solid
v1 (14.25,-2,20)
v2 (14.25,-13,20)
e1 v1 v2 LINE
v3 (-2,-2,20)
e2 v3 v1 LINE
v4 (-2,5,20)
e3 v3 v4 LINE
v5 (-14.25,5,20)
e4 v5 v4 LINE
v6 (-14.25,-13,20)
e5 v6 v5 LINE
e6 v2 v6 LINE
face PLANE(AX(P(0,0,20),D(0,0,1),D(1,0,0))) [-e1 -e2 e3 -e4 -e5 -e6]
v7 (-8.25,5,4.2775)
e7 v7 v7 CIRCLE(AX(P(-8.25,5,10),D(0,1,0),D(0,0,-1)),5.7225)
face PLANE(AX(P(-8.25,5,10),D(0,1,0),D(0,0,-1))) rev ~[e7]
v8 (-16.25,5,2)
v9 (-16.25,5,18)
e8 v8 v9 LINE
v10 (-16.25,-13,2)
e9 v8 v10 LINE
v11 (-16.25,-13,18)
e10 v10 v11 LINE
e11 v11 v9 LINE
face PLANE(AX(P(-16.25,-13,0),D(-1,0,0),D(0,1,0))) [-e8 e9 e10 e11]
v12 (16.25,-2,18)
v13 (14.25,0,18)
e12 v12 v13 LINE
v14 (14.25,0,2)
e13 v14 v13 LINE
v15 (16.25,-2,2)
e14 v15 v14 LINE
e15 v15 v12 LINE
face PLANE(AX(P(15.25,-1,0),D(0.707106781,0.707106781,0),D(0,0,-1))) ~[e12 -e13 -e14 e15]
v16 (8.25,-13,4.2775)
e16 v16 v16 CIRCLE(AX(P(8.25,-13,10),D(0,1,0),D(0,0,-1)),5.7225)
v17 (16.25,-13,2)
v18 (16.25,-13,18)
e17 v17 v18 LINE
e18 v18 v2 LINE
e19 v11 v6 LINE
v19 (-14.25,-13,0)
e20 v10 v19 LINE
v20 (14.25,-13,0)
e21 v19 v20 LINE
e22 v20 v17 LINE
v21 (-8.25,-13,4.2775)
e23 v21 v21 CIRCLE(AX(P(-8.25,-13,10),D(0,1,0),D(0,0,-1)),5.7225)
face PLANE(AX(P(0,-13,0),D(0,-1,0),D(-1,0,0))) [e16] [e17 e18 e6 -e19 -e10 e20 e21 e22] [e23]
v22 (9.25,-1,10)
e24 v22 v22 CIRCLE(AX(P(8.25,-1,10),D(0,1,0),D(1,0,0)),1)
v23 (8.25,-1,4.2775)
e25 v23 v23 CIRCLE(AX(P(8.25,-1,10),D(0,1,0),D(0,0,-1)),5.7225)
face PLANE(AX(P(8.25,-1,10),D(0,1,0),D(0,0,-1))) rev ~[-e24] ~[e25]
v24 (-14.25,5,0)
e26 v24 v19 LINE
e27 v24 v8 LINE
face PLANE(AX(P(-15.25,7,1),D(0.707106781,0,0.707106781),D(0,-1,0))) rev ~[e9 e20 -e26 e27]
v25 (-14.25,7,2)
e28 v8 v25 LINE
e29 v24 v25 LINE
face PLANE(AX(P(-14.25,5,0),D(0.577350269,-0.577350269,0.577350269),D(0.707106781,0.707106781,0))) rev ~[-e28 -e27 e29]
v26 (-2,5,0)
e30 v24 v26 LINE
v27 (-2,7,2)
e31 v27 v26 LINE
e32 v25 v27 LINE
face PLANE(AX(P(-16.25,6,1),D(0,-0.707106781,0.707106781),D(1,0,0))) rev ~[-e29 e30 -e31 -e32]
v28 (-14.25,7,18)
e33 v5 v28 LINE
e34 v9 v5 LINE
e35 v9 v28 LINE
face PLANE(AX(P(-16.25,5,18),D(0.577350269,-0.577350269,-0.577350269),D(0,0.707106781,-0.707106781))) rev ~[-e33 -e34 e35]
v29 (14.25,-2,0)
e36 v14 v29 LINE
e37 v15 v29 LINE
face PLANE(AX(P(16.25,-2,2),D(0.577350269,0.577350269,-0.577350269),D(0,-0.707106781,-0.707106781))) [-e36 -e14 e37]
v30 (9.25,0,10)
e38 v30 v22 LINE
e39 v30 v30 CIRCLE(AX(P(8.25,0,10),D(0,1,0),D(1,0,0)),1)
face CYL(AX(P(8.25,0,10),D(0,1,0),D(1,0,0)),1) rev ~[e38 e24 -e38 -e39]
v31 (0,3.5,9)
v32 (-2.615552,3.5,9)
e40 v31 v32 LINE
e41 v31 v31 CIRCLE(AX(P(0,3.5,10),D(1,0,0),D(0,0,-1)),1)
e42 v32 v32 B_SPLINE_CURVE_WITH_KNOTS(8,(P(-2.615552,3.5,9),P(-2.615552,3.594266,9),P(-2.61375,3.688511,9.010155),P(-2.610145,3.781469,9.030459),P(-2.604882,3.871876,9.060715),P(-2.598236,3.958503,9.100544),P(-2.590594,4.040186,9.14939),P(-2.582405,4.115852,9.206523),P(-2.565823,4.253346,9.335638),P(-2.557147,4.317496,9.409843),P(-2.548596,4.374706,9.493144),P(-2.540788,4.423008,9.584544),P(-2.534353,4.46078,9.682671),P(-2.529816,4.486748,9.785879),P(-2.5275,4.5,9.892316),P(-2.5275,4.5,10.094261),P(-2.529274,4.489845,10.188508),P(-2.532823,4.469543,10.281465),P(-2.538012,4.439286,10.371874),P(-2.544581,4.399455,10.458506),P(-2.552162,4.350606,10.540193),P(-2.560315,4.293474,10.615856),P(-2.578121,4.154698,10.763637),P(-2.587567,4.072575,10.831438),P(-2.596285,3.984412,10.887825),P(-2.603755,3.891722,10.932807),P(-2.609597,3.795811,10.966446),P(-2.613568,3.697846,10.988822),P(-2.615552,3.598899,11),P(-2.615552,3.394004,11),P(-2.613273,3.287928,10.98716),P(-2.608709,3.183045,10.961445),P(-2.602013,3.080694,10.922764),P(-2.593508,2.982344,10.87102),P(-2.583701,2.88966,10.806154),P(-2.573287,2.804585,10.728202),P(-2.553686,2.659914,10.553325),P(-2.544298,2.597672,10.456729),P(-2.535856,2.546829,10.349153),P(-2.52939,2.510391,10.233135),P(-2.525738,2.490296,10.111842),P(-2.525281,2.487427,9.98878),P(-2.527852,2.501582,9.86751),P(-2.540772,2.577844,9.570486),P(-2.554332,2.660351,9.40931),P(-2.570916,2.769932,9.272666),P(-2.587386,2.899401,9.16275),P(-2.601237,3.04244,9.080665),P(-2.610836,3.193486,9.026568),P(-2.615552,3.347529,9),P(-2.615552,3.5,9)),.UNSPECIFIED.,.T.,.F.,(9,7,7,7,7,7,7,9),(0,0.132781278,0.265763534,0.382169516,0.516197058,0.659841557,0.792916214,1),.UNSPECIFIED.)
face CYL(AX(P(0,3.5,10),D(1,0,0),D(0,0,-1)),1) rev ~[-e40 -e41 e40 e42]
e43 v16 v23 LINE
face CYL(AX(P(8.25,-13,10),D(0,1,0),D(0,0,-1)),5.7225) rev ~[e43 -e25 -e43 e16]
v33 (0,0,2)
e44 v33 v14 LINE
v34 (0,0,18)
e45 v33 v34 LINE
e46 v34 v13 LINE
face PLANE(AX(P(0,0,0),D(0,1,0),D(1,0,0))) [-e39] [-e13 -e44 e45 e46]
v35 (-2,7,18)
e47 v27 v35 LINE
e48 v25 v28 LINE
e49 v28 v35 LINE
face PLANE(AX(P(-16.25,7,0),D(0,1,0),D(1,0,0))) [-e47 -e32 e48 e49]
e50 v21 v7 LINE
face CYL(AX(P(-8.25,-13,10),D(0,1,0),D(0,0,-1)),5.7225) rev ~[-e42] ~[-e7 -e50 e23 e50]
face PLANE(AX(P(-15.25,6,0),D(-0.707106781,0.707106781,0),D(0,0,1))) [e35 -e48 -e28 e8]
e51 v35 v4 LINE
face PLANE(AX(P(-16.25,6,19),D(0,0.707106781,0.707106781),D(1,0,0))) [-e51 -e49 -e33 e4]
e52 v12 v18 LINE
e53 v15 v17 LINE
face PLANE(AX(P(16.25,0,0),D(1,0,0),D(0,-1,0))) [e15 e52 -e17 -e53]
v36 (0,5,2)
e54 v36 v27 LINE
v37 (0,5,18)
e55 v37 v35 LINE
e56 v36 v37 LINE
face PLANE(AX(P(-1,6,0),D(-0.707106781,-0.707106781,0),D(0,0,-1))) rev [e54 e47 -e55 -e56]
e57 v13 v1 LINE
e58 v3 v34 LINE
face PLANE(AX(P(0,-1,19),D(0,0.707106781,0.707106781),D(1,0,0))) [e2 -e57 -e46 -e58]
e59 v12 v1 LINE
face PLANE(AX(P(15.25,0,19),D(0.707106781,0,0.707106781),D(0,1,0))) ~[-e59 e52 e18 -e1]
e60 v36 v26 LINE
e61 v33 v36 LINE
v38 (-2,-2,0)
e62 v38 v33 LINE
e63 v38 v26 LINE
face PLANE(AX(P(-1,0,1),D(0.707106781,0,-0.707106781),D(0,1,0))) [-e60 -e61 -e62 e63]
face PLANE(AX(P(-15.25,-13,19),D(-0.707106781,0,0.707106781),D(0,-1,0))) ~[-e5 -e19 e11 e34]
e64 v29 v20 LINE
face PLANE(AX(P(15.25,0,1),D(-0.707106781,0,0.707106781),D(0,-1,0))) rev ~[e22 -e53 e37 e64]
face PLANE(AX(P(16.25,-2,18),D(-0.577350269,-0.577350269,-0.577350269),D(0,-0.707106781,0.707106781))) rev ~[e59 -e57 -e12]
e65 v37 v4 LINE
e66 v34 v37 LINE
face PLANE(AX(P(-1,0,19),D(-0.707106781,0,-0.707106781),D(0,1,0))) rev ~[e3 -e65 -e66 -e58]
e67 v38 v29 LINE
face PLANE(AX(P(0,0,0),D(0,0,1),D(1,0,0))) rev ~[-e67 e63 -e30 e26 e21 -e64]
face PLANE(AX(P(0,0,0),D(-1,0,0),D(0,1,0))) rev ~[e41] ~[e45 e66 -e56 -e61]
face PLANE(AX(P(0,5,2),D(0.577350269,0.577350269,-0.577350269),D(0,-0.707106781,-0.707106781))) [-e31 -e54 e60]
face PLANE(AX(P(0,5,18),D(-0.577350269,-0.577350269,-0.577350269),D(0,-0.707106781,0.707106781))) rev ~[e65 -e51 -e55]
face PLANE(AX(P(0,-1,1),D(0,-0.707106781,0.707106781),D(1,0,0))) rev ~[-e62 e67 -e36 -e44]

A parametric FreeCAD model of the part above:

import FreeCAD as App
import Part
import Sketcher


def edges_at(feature, points):
    """Names of the edges that pass closest to the given points."""
    edges = feature.Shape.Edges
    near = lambda p: min(range(len(edges)), key=lambda i: edges[i].distToShape(Part.Vertex(*p))[0])
    return sorted({f"Edge{near(p) + 1}" for p in points})


def add_polygon(sketch, points):
    """Adds a closed chain of lines whose ends are joined by coincident constraints."""
    first, n = sketch.GeometryCount, len(points)
    for a, b in zip(points, points[1:] + points[:1]):
        sketch.addGeometry(Part.LineSegment(App.Vector(*a, 0), App.Vector(*b, 0)), False)
    for i in range(n):
        sketch.addConstraint(Sketcher.Constraint("Coincident", first + i, 2, first + (i + 1) % n, 1))

doc = App.newDocument("Part")
body = doc.addObject("PartDesign::Body", "Body")

sketch1 = doc.addObject("Sketcher::SketchObject", "Sketch")
body.addObject(sketch1)
sketch1.AttachmentSupport = (doc.XY_Plane, [""])
sketch1.MapMode = "FlatFace"
add_polygon(sketch1, [(-16.25, -13), (16.25, -13), (16.25, 0), (0, 0), (0, 7), (-16.25, 7)])
sketch1.addConstraint(Sketcher.Constraint("Horizontal", 0))
sketch1.addConstraint(Sketcher.Constraint("Vertical", 1))
sketch1.addConstraint(Sketcher.Constraint("Horizontal", 2))
sketch1.addConstraint(Sketcher.Constraint("Vertical", 3))
sketch1.addConstraint(Sketcher.Constraint("Horizontal", 4))
sketch1.addConstraint(Sketcher.Constraint("Vertical", 5))
sketch1.addConstraint(Sketcher.Constraint("Coincident", 2, 2, -1, 1))
sketch1.addConstraint(Sketcher.Constraint("Equal", 2, 4))
sketch1.addConstraint(Sketcher.Constraint("DistanceY", 3, 1, 3, 2, 7.0))
sketch1.addConstraint(Sketcher.Constraint("DistanceY", 5, 2, 5, 1, 20.0))
sketch1.addConstraint(Sketcher.Constraint("DistanceX", 0, 1, 0, 2, 32.5))
pad1 = doc.addObject("PartDesign::Pad", "Pad")
body.addObject(pad1)
pad1.Profile = sketch1
pad1.Length = 20

sketch2 = doc.addObject("Sketcher::SketchObject", "Sketch001")
body.addObject(sketch2)
sketch2.AttachmentSupport = (doc.XZ_Plane, [""])
sketch2.MapMode = "FlatFace"
sketch2.addGeometry(Part.Circle(App.Vector(8.25, 10, 0), App.Vector(0, 0, 1), 1), False)
sketch2.addConstraint(Sketcher.Constraint("Diameter", 0, 2.0))
sketch2.addConstraint(Sketcher.Constraint("DistanceY", -1, 1, 0, 3, 10.0))
sketch2.addConstraint(Sketcher.Constraint("DistanceX", -1, 1, 0, 3, 8.25))
pocket1 = doc.addObject("PartDesign::Pocket", "Pocket")
body.addObject(pocket1)
pocket1.Profile = sketch2
pocket1.Length = 3
pocket1.Reversed = True

sketch3 = doc.addObject("Sketcher::SketchObject", "Sketch002")
body.addObject(sketch3)
sketch3.AttachmentSupport = (doc.YZ_Plane, [""])
sketch3.MapMode = "FlatFace"
sketch3.addGeometry(Part.Circle(App.Vector(3.5, 10, 0), App.Vector(0, 0, 1), 1), False)
sketch3.addConstraint(Sketcher.Constraint("Diameter", 0, 2.0))
sketch3.addConstraint(Sketcher.Constraint("DistanceY", -1, 1, 0, 3, 10.0))
sketch3.addConstraint(Sketcher.Constraint("DistanceX", -1, 1, 0, 3, 3.5))
pocket2 = doc.addObject("PartDesign::Pocket", "Pocket001")
body.addObject(pocket2)
pocket2.Profile = sketch3
pocket2.Length = 10
doc.recompute()

chamfer = doc.addObject("PartDesign::Chamfer", "Chamfer")
body.addObject(chamfer)
chamfer.Base = (pocket2, edges_at(pocket2, [
    (-8.125, 7, 20),
    (-16.25, -3, 20),
    (-16.25, 7, 10),
    (-16.25, -3, 0),
    (-8.125, 7, 0),
    (0, 7, 10),
    (8.125, 0, 0),
    (8.125, 0, 20),
    (16.25, 0, 10),
    (16.25, -6.5, 0),
    (16.25, -6.5, 20),
    (0, 3.5, 20),
    (0, 3.5, 0),
]))
chamfer.Size = 2

sketch4 = doc.addObject("Sketcher::SketchObject", "Sketch003")
body.addObject(sketch4)
sketch4.AttachmentSupport = (doc.XZ_Plane, [""])
sketch4.MapMode = "FlatFace"
sketch4.AttachmentOffset = App.Placement(App.Vector(0, 0, 13), App.Rotation())
sketch4.addGeometry(Part.Circle(App.Vector(8.25, 10, 0), App.Vector(0, 0, 1), 5.7225), False)
sketch4.addConstraint(Sketcher.Constraint("Diameter", 0, 11.445))
sketch4.addConstraint(Sketcher.Constraint("DistanceY", -1, 1, 0, 3, 10.0))
sketch4.addConstraint(Sketcher.Constraint("DistanceX", -1, 1, 0, 3, 8.25))
doc.recompute()
hole = doc.addObject("PartDesign::Hole", "Hole")
body.addObject(hole)
hole.Profile = sketch4
hole.ThreadType = "None"
hole.Diameter = 11.445
hole.DepthType = "Dimension"
hole.Depth = 12
hole.DrillPoint = "Flat"

sketch5 = doc.addObject("Sketcher::SketchObject", "Sketch004")
body.addObject(sketch5)
sketch5.AttachmentSupport = (doc.XZ_Plane, [""])
sketch5.MapMode = "FlatFace"
sketch5.AttachmentOffset = App.Placement(App.Vector(0, 0, 13), App.Rotation())
sketch5.addGeometry(Part.Circle(App.Vector(-8.25, 10, 0), App.Vector(0, 0, 1), 5.7225), False)
sketch5.addConstraint(Sketcher.Constraint("Diameter", 0, 11.445))
sketch5.addConstraint(Sketcher.Constraint("DistanceY", -1, 1, 0, 3, 10.0))
sketch5.addConstraint(Sketcher.Constraint("DistanceX", 0, 3, -1, 1, 8.25))
doc.recompute()
hole2 = doc.addObject("PartDesign::Hole", "Hole001")
body.addObject(hole2)
hole2.Profile = sketch5
hole2.ThreadType = "None"
hole2.Diameter = 11.445
hole2.DepthType = "Dimension"
hole2.Depth = 18
hole2.DrillPoint = "Flat"

doc.recompute()
